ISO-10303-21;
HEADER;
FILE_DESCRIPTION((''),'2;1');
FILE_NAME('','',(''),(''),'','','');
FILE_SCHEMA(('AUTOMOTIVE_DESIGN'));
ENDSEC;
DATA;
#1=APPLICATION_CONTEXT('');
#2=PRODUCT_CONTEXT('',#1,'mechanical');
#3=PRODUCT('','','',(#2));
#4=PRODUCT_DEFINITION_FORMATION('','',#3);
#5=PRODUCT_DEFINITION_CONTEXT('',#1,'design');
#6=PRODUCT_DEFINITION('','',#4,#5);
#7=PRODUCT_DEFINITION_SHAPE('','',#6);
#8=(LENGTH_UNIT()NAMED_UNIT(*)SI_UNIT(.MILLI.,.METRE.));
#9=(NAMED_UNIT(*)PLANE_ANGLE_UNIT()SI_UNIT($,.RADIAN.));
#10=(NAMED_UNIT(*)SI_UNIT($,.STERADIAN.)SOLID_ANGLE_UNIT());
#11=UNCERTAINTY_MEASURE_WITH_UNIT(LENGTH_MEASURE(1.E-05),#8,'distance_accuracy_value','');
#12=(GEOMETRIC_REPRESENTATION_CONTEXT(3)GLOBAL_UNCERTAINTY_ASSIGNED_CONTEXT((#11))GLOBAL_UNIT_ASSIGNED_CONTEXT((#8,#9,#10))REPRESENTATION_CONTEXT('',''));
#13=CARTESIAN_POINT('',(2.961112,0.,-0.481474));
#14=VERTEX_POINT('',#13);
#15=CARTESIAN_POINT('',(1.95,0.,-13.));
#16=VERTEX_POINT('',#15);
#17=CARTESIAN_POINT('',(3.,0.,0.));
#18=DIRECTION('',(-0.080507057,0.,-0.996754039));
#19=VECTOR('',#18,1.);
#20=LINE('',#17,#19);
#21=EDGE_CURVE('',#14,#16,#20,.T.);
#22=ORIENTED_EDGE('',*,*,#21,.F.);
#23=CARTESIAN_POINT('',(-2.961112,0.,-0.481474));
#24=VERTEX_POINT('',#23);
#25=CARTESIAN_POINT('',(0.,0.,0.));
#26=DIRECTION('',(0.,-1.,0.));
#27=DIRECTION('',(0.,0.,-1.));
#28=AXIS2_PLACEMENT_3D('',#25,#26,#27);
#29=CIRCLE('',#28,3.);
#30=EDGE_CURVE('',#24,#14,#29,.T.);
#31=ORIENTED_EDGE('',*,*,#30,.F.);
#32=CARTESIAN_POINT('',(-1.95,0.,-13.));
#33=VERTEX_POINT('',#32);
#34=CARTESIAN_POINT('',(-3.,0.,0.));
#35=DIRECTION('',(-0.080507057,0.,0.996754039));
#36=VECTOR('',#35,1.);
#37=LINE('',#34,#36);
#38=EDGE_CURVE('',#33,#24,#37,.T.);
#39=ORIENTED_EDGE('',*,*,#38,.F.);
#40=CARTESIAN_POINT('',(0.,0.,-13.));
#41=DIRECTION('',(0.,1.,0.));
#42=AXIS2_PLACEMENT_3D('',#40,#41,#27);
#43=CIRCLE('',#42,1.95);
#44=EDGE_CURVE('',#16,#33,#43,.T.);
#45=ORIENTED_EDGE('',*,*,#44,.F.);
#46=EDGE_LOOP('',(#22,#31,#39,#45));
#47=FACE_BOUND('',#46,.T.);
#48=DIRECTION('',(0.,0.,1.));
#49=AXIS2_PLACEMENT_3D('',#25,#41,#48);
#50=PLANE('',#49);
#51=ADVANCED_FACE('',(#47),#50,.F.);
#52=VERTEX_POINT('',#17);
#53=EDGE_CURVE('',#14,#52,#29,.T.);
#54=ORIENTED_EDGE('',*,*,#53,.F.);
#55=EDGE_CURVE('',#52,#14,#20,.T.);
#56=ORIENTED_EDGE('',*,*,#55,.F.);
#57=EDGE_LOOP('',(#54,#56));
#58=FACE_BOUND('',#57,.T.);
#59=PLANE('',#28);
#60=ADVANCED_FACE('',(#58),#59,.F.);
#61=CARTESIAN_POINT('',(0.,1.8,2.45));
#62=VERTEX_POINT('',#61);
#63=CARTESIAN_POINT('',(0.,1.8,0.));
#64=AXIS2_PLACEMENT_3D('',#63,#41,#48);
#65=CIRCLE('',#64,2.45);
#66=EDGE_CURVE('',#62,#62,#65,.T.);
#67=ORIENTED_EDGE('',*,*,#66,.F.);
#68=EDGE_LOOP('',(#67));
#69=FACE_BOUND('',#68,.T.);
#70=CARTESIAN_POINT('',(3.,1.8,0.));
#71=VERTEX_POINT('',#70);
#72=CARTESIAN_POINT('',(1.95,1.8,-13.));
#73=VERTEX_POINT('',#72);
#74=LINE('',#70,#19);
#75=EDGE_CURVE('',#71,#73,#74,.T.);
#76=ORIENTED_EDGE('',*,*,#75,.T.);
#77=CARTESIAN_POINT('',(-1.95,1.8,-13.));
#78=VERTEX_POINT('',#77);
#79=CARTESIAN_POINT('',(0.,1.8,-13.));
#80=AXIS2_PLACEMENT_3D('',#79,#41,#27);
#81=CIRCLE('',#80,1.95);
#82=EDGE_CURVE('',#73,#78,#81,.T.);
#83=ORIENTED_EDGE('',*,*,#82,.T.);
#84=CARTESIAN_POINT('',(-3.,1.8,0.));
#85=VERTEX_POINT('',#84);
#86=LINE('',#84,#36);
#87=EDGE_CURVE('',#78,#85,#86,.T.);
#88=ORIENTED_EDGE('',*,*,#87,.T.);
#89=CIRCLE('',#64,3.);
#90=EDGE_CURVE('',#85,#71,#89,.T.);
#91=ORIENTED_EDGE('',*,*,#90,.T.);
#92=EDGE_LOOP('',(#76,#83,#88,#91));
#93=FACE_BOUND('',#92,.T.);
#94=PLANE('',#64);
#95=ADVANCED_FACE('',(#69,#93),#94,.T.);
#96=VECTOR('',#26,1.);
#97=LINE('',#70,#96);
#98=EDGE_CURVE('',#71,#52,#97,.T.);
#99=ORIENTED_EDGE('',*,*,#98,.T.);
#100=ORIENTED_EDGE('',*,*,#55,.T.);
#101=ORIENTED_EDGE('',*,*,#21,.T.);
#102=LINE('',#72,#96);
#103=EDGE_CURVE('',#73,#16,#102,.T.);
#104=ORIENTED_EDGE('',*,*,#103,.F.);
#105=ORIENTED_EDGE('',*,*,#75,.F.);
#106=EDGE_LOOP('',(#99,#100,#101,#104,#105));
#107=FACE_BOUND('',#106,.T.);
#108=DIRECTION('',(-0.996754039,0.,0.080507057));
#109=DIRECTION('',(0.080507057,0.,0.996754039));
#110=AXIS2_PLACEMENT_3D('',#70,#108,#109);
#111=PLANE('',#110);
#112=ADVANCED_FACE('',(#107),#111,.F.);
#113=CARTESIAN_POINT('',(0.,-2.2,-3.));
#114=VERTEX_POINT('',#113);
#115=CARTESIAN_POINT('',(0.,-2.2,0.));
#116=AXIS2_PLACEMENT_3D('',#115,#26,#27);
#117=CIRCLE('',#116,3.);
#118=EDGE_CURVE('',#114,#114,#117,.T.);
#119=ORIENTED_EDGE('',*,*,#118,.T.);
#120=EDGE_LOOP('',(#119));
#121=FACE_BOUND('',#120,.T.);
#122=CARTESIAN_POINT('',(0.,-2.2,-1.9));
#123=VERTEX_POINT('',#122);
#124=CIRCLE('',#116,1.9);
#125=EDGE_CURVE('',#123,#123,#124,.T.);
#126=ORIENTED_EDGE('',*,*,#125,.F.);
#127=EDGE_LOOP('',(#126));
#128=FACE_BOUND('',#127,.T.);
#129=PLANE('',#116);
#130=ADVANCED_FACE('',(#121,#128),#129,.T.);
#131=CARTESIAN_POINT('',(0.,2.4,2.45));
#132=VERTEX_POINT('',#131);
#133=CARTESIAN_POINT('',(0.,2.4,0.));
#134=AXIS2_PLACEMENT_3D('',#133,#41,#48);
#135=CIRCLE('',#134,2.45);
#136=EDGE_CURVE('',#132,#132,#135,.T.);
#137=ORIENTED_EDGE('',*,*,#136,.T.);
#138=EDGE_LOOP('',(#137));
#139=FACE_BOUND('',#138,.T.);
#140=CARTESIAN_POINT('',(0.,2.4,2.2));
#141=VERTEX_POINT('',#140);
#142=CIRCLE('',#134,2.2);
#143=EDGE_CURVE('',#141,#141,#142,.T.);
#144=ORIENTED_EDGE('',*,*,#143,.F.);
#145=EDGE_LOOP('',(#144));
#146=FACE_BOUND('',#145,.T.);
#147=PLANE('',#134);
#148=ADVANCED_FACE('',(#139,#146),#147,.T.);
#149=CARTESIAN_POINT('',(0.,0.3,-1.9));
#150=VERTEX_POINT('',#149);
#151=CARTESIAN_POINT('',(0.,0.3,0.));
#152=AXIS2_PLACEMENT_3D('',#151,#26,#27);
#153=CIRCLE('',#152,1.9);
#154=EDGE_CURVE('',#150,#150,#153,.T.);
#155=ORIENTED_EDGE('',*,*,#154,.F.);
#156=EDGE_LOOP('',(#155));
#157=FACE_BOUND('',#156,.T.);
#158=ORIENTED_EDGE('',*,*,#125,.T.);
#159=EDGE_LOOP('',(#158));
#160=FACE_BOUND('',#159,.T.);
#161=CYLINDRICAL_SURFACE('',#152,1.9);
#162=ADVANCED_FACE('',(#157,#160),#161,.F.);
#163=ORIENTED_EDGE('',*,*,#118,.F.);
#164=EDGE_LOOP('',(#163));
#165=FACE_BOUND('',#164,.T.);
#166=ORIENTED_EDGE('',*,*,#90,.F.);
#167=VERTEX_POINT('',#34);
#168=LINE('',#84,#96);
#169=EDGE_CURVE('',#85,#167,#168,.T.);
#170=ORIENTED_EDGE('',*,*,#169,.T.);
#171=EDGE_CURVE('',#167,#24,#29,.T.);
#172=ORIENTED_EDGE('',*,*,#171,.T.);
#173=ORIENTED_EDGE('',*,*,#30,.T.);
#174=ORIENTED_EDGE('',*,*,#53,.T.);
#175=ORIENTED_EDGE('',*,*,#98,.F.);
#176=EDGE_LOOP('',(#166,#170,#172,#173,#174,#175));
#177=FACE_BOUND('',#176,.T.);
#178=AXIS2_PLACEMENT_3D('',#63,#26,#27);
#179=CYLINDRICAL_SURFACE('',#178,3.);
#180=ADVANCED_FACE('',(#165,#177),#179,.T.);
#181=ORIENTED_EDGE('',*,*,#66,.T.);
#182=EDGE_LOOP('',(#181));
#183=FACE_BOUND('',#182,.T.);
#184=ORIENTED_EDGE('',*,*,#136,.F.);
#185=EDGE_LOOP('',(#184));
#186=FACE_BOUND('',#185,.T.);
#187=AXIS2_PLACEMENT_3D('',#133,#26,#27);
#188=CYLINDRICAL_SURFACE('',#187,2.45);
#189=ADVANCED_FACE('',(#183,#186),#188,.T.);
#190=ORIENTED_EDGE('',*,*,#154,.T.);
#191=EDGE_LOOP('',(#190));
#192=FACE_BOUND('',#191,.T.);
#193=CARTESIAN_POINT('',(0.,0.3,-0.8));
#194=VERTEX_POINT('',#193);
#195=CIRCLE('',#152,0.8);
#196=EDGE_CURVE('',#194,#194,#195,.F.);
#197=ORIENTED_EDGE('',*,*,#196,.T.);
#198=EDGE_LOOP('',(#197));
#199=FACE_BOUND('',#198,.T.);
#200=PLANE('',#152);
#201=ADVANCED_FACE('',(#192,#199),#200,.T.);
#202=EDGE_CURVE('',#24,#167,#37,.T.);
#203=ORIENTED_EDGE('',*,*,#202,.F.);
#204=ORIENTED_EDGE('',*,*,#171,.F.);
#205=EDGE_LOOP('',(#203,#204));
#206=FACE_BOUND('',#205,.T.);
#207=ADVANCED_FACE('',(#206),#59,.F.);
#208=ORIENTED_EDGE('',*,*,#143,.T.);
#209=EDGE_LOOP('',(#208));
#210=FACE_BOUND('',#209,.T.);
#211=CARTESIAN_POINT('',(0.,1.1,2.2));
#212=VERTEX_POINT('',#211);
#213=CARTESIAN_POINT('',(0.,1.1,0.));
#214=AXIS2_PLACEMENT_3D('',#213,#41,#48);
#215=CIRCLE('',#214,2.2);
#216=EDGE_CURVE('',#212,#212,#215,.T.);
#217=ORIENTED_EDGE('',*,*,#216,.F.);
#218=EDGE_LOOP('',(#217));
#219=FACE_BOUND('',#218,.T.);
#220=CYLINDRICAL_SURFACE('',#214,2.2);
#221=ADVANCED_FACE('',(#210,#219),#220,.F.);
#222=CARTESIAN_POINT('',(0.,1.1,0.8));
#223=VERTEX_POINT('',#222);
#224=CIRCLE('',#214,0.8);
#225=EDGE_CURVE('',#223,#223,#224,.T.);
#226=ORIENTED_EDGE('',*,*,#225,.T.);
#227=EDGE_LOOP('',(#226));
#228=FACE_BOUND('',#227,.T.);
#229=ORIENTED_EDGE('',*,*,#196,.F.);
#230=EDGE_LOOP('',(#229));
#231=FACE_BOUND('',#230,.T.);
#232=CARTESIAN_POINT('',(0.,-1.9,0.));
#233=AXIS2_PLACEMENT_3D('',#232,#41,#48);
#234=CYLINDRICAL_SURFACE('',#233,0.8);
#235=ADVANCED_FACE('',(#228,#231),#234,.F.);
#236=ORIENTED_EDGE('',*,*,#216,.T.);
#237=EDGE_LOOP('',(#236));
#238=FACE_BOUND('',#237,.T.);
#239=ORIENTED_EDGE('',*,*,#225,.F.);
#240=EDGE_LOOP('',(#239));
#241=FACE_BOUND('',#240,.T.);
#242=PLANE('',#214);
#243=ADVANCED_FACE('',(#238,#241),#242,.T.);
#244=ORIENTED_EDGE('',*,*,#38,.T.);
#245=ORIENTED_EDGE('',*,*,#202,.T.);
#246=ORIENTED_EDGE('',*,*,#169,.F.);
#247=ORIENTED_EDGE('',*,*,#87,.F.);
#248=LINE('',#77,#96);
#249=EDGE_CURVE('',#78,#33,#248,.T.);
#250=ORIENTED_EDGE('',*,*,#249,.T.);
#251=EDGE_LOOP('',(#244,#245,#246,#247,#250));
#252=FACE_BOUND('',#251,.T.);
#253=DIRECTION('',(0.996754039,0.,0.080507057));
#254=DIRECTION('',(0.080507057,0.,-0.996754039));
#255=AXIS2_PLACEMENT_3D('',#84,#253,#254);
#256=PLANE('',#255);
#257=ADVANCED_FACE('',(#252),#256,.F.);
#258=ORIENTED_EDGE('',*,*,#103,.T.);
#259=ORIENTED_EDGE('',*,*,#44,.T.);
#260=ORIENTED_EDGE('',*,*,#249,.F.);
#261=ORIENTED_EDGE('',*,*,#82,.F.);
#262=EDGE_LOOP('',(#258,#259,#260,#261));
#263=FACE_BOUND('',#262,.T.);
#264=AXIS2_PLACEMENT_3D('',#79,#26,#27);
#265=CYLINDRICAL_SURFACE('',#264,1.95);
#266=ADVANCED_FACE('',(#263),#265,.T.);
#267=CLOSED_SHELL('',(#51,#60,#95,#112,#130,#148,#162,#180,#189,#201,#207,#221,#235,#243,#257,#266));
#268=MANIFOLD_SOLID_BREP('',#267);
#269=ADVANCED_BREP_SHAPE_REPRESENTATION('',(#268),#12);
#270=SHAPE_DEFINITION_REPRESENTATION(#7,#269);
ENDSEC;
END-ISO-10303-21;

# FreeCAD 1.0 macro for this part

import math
import FreeCAD as App
import Part
import Sketcher
from FreeCAD import Vector

doc = App.newDocument("Part")
body = doc.addObject("PartDesign::Body", "Body")

sketch1 = body.newObject("Sketcher::SketchObject", "Sketch")
sketch1.AttachmentSupport = (doc.getObject("XZ_Plane"), [""])
sketch1.MapMode = "FlatFace"
sketch1.addGeometry(Part.LineSegment(Vector(-1.9, -13, 0), Vector(-3, 0, 0)), False)
sketch1.addGeometry(Part.ArcOfCircle(Part.Circle(Vector(0, 0, 0), Vector(0, 0, 1), 3), math.radians(0), math.radians(180)), False)
sketch1.addGeometry(Part.LineSegment(Vector(3, 0, 0), Vector(1.9, -13, 0)), False)
sketch1.addGeometry(Part.ArcOfCircle(Part.Circle(Vector(0, -13, 0), Vector(0, 0, 1), 1.9), math.radians(180), math.radians(360)), False)
sketch1.addConstraint(Sketcher.Constraint("Coincident", 0, 2, 1, 2))
sketch1.addConstraint(Sketcher.Constraint("Coincident", 1, 1, 2, 1))
sketch1.addConstraint(Sketcher.Constraint("Coincident", 2, 2, 3, 2))
sketch1.addConstraint(Sketcher.Constraint("Coincident", 3, 1, 0, 1))
sketch1.addConstraint(Sketcher.Constraint("Coincident", 1, 3, -1, 1))
sketch1.addConstraint(Sketcher.Constraint("Symmetric", 2, 2, 3, 1, -2))
sketch1.addConstraint(Sketcher.Constraint("PointOnObject", 0, 2, -1))
sketch1.addConstraint(Sketcher.Constraint("PointOnObject", 1, 1, -1))
sketch1.addConstraint(Sketcher.Constraint("Horizontal", 3, 3, 2, 2))
sketch1.addConstraint(Sketcher.Constraint("Radius", 1, 3.0))
sketch1.addConstraint(Sketcher.Constraint("Radius", 3, 1.95))
sketch1.addConstraint(Sketcher.Constraint("DistanceY", 3, 3, -1, 1, 13.0))
pad1 = body.newObject("PartDesign::Pad", "Pad")
pad1.Profile = sketch1
pad1.Length = 1.8
pad1.Reversed = True

sketch2 = body.newObject("Sketcher::SketchObject", "Sketch001")
sketch2.AttachmentSupport = (doc.getObject("XZ_Plane"), [""])
sketch2.MapMode = "FlatFace"
sketch2.AttachmentOffset = App.Placement(Vector(0, 0, -1.8), App.Rotation())
sketch2.addGeometry(Part.Circle(Vector(0, 0, 0), Vector(0, 0, 1), 2.5), False)
sketch2.addConstraint(Sketcher.Constraint("Coincident", 0, 3, -1, 1))
sketch2.addConstraint(Sketcher.Constraint("Diameter", 0, 4.9))
pad2 = body.newObject("PartDesign::Pad", "Pad001")
pad2.Profile = sketch2
pad2.Length = 0.6
pad2.Reversed = True

sketch3 = body.newObject("Sketcher::SketchObject", "Sketch002")
sketch3.AttachmentSupport = (doc.getObject("XZ_Plane"), [""])
sketch3.MapMode = "FlatFace"
sketch3.AttachmentOffset = App.Placement(Vector(0, 0, -2.4), App.Rotation())
sketch3.addGeometry(Part.Circle(Vector(0, 0, 0), Vector(0, 0, 1), 2.2), False)
sketch3.addConstraint(Sketcher.Constraint("Coincident", 0, 3, -1, 1))
sketch3.addConstraint(Sketcher.Constraint("Diameter", 0, 4.4))
pocket1 = body.newObject("PartDesign::Pocket", "Pocket")
pocket1.Profile = sketch3
pocket1.Length = 1.3
pocket1.Reversed = True

sketch4 = body.newObject("Sketcher::SketchObject", "Sketch003")
sketch4.AttachmentSupport = (doc.getObject("XZ_Plane"), [""])
sketch4.MapMode = "FlatFace"
sketch4.AttachmentOffset = App.Placement(Vector(0, 0, -1.1), App.Rotation())
sketch4.addGeometry(Part.Circle(Vector(0, 0, 0), Vector(0, 0, 1), 0.8), False)
sketch4.addConstraint(Sketcher.Constraint("Coincident", 0, 3, -1, 1))
sketch4.addConstraint(Sketcher.Constraint("Diameter", 0, 1.6))
pocket2 = body.newObject("PartDesign::Pocket", "Pocket001")
pocket2.Profile = sketch4
pocket2.Length = 3
pocket2.Reversed = True

sketch5 = body.newObject("Sketcher::SketchObject", "Sketch004")
sketch5.AttachmentSupport = (doc.getObject("XZ_Plane"), [""])
sketch5.MapMode = "FlatFace"
sketch5.AttachmentOffset = App.Placement(Vector(0, 0, 2.2), App.Rotation())
sketch5.addGeometry(Part.Circle(Vector(0, 0, 0), Vector(0, 0, 1), 3), False)
sketch5.addConstraint(Sketcher.Constraint("Coincident", 0, 3, -1, 1))
sketch5.addConstraint(Sketcher.Constraint("Diameter", 0, 6.0))
pad3 = body.newObject("PartDesign::Pad", "Pad002")
pad3.Profile = sketch5
pad3.Length = 2.2
pad3.Reversed = True

sketch6 = body.newObject("Sketcher::SketchObject", "Sketch005")
sketch6.AttachmentSupport = (doc.getObject("XZ_Plane"), [""])
sketch6.MapMode = "FlatFace"
sketch6.AttachmentOffset = App.Placement(Vector(0, 0, 2.2), App.Rotation())
sketch6.addGeometry(Part.Circle(Vector(0, 0, 0), Vector(0, 0, 1), 1.9), False)
sketch6.addConstraint(Sketcher.Constraint("Coincident", 0, 3, -1, 1))
sketch6.addConstraint(Sketcher.Constraint("Diameter", 0, 3.8))
pocket3 = body.newObject("PartDesign::Pocket", "Pocket002")
pocket3.Profile = sketch6
pocket3.Length = 2.5

doc.recompute()
